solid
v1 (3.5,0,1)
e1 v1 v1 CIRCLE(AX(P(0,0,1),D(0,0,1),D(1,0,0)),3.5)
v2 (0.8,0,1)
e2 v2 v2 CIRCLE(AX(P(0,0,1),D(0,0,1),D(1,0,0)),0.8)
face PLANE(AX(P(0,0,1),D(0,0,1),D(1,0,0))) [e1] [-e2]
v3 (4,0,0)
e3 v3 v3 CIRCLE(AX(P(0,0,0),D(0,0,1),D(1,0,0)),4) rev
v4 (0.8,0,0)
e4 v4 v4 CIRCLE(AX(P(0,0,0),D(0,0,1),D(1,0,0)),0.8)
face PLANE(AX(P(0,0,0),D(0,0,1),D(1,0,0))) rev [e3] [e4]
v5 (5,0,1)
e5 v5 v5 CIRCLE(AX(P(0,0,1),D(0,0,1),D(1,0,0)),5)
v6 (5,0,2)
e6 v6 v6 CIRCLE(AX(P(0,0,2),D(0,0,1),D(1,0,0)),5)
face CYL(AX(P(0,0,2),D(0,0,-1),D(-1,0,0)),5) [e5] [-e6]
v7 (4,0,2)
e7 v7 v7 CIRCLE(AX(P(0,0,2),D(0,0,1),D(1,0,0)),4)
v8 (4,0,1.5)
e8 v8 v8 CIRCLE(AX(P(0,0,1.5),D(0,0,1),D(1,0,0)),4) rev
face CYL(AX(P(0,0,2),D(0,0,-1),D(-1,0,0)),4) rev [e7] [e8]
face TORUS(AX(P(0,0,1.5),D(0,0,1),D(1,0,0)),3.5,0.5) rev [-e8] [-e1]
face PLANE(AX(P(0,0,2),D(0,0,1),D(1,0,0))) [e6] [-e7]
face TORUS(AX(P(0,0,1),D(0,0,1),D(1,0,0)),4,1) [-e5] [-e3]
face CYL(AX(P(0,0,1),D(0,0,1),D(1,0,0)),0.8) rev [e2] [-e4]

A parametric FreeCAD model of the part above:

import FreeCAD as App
import Part
import Sketcher
from FreeCAD import Vector
Q = App.Units.Quantity


def edges_at(feature, points):
    """Names of the edges that pass closest to the given points."""
    edges = feature.Shape.Edges
    near = lambda p: min(range(len(edges)), key=lambda i: edges[i].distToShape(Part.Vertex(*p))[0])
    return sorted({f"Edge{near(p) + 1}" for p in points})


def faces_at(feature, points):
    """Names of the faces that lie closest to the given points."""
    faces = feature.Shape.Faces
    near = lambda p: min(range(len(faces)), key=lambda i: faces[i].distToShape(Part.Vertex(*p))[0])
    return sorted({f"Face{near(p) + 1}" for p in points})

doc = App.newDocument("Part")
body = doc.addObject("PartDesign::Body", "Body")

# Sketch on XY plane
sketch1 = body.newObject("Sketcher::SketchObject", "Sketch")
sketch1.AttachmentSupport = (doc.getObject("XY_Plane"), [""])
sketch1.MapMode = "FlatFace"
sketch1.addGeometry(Part.Circle(Vector(0, 0, 0), Vector(0, 0, 1), 5), False)
sketch1.addConstraint([
    Sketcher.Constraint("Coincident", 0, 3, -1, 1),
    Sketcher.Constraint("Diameter", 0, Q("10 mm")),
])
pad1 = body.newObject("PartDesign::Pad", "Pad")
pad1.Profile = sketch1
pad1.Length = 2
doc.recompute()

thickness = body.newObject("PartDesign::Thickness", "Thickness")
thickness.Base = (pad1, faces_at(pad1, [(0, 0, 2)]))
thickness.Value = 1
thickness.Reversed = True
thickness.Join = "Intersection"
doc.recompute()

fillet = body.newObject("PartDesign::Fillet", "Fillet")
fillet.Base = (thickness, edges_at(thickness, [(-4, 0, 1)]))
fillet.Radius = 0.5
doc.recompute()

fillet2 = body.newObject("PartDesign::Fillet", "Fillet001")
fillet2.Base = (fillet, edges_at(fillet, [(-5, 0, 0)]))
fillet2.Radius = 1

# Sketch on XY plane
sketch2 = body.newObject("Sketcher::SketchObject", "Sketch001")
sketch2.AttachmentSupport = (doc.getObject("XY_Plane"), [""])
sketch2.MapMode = "FlatFace"
sketch2.AttachmentOffset = App.Placement(Vector(0, 0, 1), App.Rotation())
sketch2.addGeometry(Part.Circle(Vector(0, 0, 0), Vector(0, 0, 1), 0.8), False)
sketch2.addConstraint([
    Sketcher.Constraint("Coincident", 0, 3, -1, 1),
    Sketcher.Constraint("Diameter", 0, Q("1.6 mm")),
])
doc.recompute()
hole = body.newObject("PartDesign::Hole", "Hole")
hole.Profile = sketch2
hole.ThreadType = "None"
hole.Diameter = 1.6
hole.DepthType = "Dimension"
hole.Depth = 5.2
hole.DrillPoint = "Angled"
hole.DrillPointAngle = 118

doc.recompute()
